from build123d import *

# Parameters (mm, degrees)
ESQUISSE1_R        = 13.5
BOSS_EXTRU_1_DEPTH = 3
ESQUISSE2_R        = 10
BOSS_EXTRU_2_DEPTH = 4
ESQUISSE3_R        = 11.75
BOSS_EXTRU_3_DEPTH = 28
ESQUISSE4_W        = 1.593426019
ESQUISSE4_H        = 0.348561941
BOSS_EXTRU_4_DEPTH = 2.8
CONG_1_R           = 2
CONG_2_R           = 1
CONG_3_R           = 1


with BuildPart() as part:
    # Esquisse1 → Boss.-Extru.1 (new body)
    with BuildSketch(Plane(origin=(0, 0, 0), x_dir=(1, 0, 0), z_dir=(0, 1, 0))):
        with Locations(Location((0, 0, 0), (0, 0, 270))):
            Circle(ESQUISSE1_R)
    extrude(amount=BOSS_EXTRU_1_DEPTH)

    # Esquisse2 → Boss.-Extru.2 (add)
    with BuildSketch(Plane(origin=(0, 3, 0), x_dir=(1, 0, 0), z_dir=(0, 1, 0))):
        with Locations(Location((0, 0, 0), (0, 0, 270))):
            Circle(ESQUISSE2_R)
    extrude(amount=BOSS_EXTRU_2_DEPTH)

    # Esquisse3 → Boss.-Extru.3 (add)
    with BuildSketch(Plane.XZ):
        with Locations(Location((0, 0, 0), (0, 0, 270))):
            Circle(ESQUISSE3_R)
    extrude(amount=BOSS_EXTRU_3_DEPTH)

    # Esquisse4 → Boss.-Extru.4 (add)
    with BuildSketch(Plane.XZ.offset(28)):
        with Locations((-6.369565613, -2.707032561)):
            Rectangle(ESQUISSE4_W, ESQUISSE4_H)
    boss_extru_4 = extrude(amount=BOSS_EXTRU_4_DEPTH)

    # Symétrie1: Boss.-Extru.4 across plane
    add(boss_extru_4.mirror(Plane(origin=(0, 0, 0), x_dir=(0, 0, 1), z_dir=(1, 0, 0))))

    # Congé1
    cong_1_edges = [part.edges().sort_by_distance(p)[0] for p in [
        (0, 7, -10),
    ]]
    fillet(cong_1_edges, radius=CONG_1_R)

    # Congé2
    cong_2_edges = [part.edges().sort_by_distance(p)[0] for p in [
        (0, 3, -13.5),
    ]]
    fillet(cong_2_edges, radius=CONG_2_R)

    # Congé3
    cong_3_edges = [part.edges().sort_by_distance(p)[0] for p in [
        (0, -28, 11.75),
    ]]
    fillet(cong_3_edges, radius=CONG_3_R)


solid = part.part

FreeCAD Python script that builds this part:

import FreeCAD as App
import Part
import Sketcher
Q = App.Units.Quantity


def edges_at(feature, points):
    """Names of the edges that pass closest to the given points."""
    edges = feature.Shape.Edges
    near = lambda p: min(range(len(edges)), key=lambda i: edges[i].distToShape(Part.Vertex(*p))[0])
    return sorted({f"Edge{near(p) + 1}" for p in points})


def add_polygon(sketch, points):
    """Adds a closed chain of lines whose ends are joined by coincident constraints."""
    first, n = sketch.GeometryCount, len(points)
    for a, b in zip(points, points[1:] + points[:1]):
        sketch.addGeometry(Part.LineSegment(App.Vector(*a, 0), App.Vector(*b, 0)), False)
    for i in range(n):
        sketch.addConstraint(Sketcher.Constraint("Coincident", first + i, 2, first + (i + 1) % n, 1))

doc = App.newDocument("Part")
body = doc.addObject("PartDesign::Body", "Body")

sketch1 = doc.addObject("Sketcher::SketchObject", "Sketch")
body.addObject(sketch1)
sketch1.AttachmentSupport = (doc.XZ_Plane, [""])
sketch1.MapMode = "FlatFace"
sketch1.addGeometry(Part.Circle(App.Vector(0, 0, 0), App.Vector(0, 0, 1), 14), False)
sketch1.addConstraint([
    Sketcher.Constraint("Coincident", 0, 3, -1, 1),
    Sketcher.Constraint("Diameter", 0, Q("27 mm")),
])
pad1 = doc.addObject("PartDesign::Pad", "Pad")
body.addObject(pad1)
pad1.Profile = sketch1
pad1.Length = 3
pad1.Reversed = True

sketch2 = doc.addObject("Sketcher::SketchObject", "Sketch001")
body.addObject(sketch2)
sketch2.AttachmentSupport = (doc.XZ_Plane, [""])
sketch2.MapMode = "FlatFace"
sketch2.AttachmentOffset = App.Placement(App.Vector(0, 0, -3), App.Rotation())
sketch2.addGeometry(Part.Circle(App.Vector(0, 0, 0), App.Vector(0, 0, 1), 10), False)
sketch2.addConstraint([
    Sketcher.Constraint("Coincident", 0, 3, -1, 1),
    Sketcher.Constraint("Diameter", 0, Q("20 mm")),
])
pad2 = doc.addObject("PartDesign::Pad", "Pad001")
body.addObject(pad2)
pad2.Profile = sketch2
pad2.Length = 4
pad2.Reversed = True

sketch3 = doc.addObject("Sketcher::SketchObject", "Sketch002")
body.addObject(sketch3)
sketch3.AttachmentSupport = (doc.XZ_Plane, [""])
sketch3.MapMode = "FlatFace"
sketch3.addGeometry(Part.Circle(App.Vector(0, 0, 0), App.Vector(0, 0, 1), 12), False)
sketch3.addConstraint([
    Sketcher.Constraint("Coincident", 0, 3, -1, 1),
    Sketcher.Constraint("Diameter", 0, Q("23.5 mm")),
])
pad3 = doc.addObject("PartDesign::Pad", "Pad002")
body.addObject(pad3)
pad3.Profile = sketch3
pad3.Length = 28

sketch4 = doc.addObject("Sketcher::SketchObject", "Sketch003")
body.addObject(sketch4)
sketch4.AttachmentSupport = (doc.XZ_Plane, [""])
sketch4.MapMode = "FlatFace"
sketch4.AttachmentOffset = App.Placement(App.Vector(0, 0, 28), App.Rotation())
add_polygon(sketch4, [(-7.17, -2.53), (-7.17, -2.88), (-5.57, -2.88), (-5.57, -2.53)])
sketch4.addConstraint([
    Sketcher.Constraint("Vertical", 0),
    Sketcher.Constraint("Horizontal", 1),
    Sketcher.Constraint("Vertical", 2),
    Sketcher.Constraint("Horizontal", 3),
    Sketcher.Constraint("DistanceY", 0, 2, 0, 1, Q("0.348562 mm")),
    Sketcher.Constraint("DistanceX", 1, 1, 1, 2, Q("1.593426 mm")),
    Sketcher.Constraint("DistanceX", 0, 2, -1, 1, Q("7.166279 mm")),
    Sketcher.Constraint("DistanceY", 2, 2, -1, 1, Q("2.532752 mm")),
])
pad4 = doc.addObject("PartDesign::Pad", "Pad003")
body.addObject(pad4)
pad4.Profile = sketch4
pad4.Length = 2.8
doc.recompute()

mirrored = doc.addObject("PartDesign::Mirrored", "Mirrored")
body.addObject(mirrored)
mirrored.Originals = [pad4]
mirrored.MirrorPlane = (doc.YZ_Plane, [""])
body.Tip = mirrored
doc.recompute()

fillet = doc.addObject("PartDesign::Fillet", "Fillet")
body.addObject(fillet)
fillet.Base = (mirrored, edges_at(mirrored, [(0, 7, -10)]))
fillet.Radius = 2
doc.recompute()

fillet2 = doc.addObject("PartDesign::Fillet", "Fillet001")
body.addObject(fillet2)
fillet2.Base = (fillet, edges_at(fillet, [(0, 3, -13.5)]))
fillet2.Radius = 1
doc.recompute()

fillet3 = doc.addObject("PartDesign::Fillet", "Fillet002")
body.addObject(fillet3)
fillet3.Base = (fillet2, edges_at(fillet2, [(0, -28, 11.75)]))
fillet3.Radius = 1

doc.recompute()
